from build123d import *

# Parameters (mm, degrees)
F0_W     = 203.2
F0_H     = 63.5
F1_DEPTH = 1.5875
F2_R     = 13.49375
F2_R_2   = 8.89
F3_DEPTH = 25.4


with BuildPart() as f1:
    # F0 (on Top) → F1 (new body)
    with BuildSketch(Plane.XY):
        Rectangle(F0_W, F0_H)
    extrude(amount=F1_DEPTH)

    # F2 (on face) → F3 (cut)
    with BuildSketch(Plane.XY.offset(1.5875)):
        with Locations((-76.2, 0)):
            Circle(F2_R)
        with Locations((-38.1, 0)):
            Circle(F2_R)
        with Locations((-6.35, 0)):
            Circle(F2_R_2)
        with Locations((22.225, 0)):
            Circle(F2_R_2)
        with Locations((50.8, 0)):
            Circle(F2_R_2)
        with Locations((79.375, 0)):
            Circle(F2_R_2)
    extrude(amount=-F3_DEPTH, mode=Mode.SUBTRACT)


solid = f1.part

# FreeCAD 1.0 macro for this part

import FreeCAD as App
import Part
import Sketcher
Q = App.Units.Quantity


def add_polygon(sketch, points):
    """Adds a closed chain of lines whose ends are joined by coincident constraints."""
    first, n = sketch.GeometryCount, len(points)
    for a, b in zip(points, points[1:] + points[:1]):
        sketch.addGeometry(Part.LineSegment(App.Vector(*a, 0), App.Vector(*b, 0)), False)
    for i in range(n):
        sketch.addConstraint(Sketcher.Constraint("Coincident", first + i, 2, first + (i + 1) % n, 1))

doc = App.newDocument("Part")
body = doc.addObject("PartDesign::Body", "Body")

# Sketch on XY plane
sketch1 = doc.addObject("Sketcher::SketchObject", "Sketch")
body.addObject(sketch1)
sketch1.AttachmentSupport = (doc.XY_Plane, [""])
sketch1.MapMode = "FlatFace"
add_polygon(sketch1, [(-102, 32), (-102, -32), (102, -32), (102, 32)])  # lines 0-3
sketch1.addConstraint([
    Sketcher.Constraint("Vertical", 0),
    Sketcher.Constraint("Horizontal", 1),
    Sketcher.Constraint("Vertical", 2),
    Sketcher.Constraint("Horizontal", 3),
    Sketcher.Constraint("Symmetric", 0, 2, 2, 2, -1, 1),
    Sketcher.Constraint("DistanceX", 1, 1, 1, 2, Q("8 in")),
    Sketcher.Constraint("DistanceY", 0, 2, 0, 1, Q("2.5 in")),
])
pad1 = doc.addObject("PartDesign::Pad", "Pad")
body.addObject(pad1)
pad1.Profile = sketch1
pad1.Length = Q("0.0625 in")

# Sketch on XY plane
sketch2 = doc.addObject("Sketcher::SketchObject", "Sketch001")
body.addObject(sketch2)
sketch2.AttachmentSupport = (doc.XY_Plane, [""])
sketch2.MapMode = "FlatFace"
sketch2.AttachmentOffset = App.Placement(App.Vector(0, 0, 0.0625 * 25.4), App.Rotation())
sketch2.addGeometry([
    Part.Circle(App.Vector(-76, 0, 0), App.Vector(0, 0, 1), 13),  # 0
    Part.Circle(App.Vector(-38, 0, 0), App.Vector(0, 0, 1), 13),  # 1
    Part.Circle(App.Vector(-6, 0, 0), App.Vector(0, 0, 1), 9),  # 2
    Part.Circle(App.Vector(22, 0, 0), App.Vector(0, 0, 1), 9),  # 3
    Part.Circle(App.Vector(51, 0, 0), App.Vector(0, 0, 1), 9),  # 4
    Part.Circle(App.Vector(79, 0, 0), App.Vector(0, 0, 1), 9),  # 5
], False)
sketch2.addConstraint([
    Sketcher.Constraint("Equal", 0, 1),
    Sketcher.Constraint("Equal", 2, 3),
    Sketcher.Constraint("Equal", 3, 4),
    Sketcher.Constraint("Equal", 4, 5),
    Sketcher.Constraint("PointOnObject", 0, 3, -1),
    Sketcher.Constraint("PointOnObject", 1, 3, -1),
    Sketcher.Constraint("PointOnObject", 2, 3, -1),
    Sketcher.Constraint("PointOnObject", 3, 3, -1),
    Sketcher.Constraint("PointOnObject", 4, 3, -1),
    Sketcher.Constraint("PointOnObject", 5, 3, -1),
    Sketcher.Constraint("Diameter", 2, Q("0.7 in")),
    Sketcher.Constraint("Diameter", 0, Q("1.0625 in")),
    Sketcher.Constraint("DistanceX", 0, 3, -1, 1, Q("3 in")),
    Sketcher.Constraint("DistanceX", -1, 1, 4, 3, Q("2 in")),
    Sketcher.Constraint("DistanceX", 1, 3, -1, 1, Q("1.5 in")),
    Sketcher.Constraint("DistanceX", 2, 3, -1, 1, Q("0.25 in")),
    Sketcher.Constraint("DistanceX", 3, 3, 5, 3, Q("2.25 in")),
    Sketcher.Constraint("DistanceX", -1, 1, 3, 3, Q("0.875 in")),
])
pocket1 = doc.addObject("PartDesign::Pocket", "Pocket")
body.addObject(pocket1)
pocket1.Profile = sketch2
pocket1.Length = Q("1 in")

doc.recompute()
